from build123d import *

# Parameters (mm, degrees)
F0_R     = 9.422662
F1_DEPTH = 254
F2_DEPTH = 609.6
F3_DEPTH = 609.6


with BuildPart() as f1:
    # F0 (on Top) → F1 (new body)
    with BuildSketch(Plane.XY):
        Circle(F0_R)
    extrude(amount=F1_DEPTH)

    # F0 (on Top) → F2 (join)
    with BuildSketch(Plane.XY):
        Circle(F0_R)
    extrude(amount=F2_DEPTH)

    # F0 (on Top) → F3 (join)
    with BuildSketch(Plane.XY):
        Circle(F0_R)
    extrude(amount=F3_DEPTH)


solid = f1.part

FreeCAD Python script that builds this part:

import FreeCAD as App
import Part
import Sketcher
from FreeCAD import Vector

doc = App.newDocument("Part")
params = doc.addObject("Spreadsheet::Sheet", "Params")
for row, (alias, value) in enumerate([
    ("pad1_length", "10 in"),
    ("pad2_length", "24 in"),
    ("pad3_length", "24 in"),
], start=1):
    params.set(f"A{row}", alias)
    params.set(f"B{row}", "=" + value)
    params.setAlias(f"B{row}", alias)

body = doc.addObject("PartDesign::Body", "Body")

sketch1 = body.newObject("Sketcher::SketchObject", "Sketch")
sketch1.AttachmentSupport = (doc.getObject("XY_Plane"), [""])
sketch1.MapMode = "FlatFace"
sketch1.addGeometry(Part.Circle(Vector(0, 0, 0), Vector(0, 0, 1), 9.422662), False)
sketch1.addConstraint([
    Sketcher.Constraint("Coincident", 0, 3, -1, 1),
    Sketcher.Constraint("Diameter", 0, 18.845324),
])
pad1 = body.newObject("PartDesign::Pad", "Pad")
pad1.Profile = sketch1
pad1.setExpression("Length", "Params.pad1_length")

sketch2 = body.newObject("Sketcher::SketchObject", "Sketch001")
sketch2.AttachmentSupport = (doc.getObject("XY_Plane"), [""])
sketch2.MapMode = "FlatFace"
sketch2.addGeometry(Part.Circle(Vector(0, 0, 0), Vector(0, 0, 1), 9.422662), False)
sketch2.addConstraint([
    Sketcher.Constraint("Coincident", 0, 3, -1, 1),
    Sketcher.Constraint("Diameter", 0, 18.845324),
])
pad2 = body.newObject("PartDesign::Pad", "Pad001")
pad2.Profile = sketch2
pad2.setExpression("Length", "Params.pad2_length")

sketch3 = body.newObject("Sketcher::SketchObject", "Sketch002")
sketch3.AttachmentSupport = (doc.getObject("XY_Plane"), [""])
sketch3.MapMode = "FlatFace"
sketch3.addGeometry(Part.Circle(Vector(0, 0, 0), Vector(0, 0, 1), 9.422662), False)
sketch3.addConstraint([
    Sketcher.Constraint("Coincident", 0, 3, -1, 1),
    Sketcher.Constraint("Diameter", 0, 18.845324),
])
pad3 = body.newObject("PartDesign::Pad", "Pad002")
pad3.Profile = sketch3
pad3.setExpression("Length", "Params.pad3_length")

doc.recompute()
